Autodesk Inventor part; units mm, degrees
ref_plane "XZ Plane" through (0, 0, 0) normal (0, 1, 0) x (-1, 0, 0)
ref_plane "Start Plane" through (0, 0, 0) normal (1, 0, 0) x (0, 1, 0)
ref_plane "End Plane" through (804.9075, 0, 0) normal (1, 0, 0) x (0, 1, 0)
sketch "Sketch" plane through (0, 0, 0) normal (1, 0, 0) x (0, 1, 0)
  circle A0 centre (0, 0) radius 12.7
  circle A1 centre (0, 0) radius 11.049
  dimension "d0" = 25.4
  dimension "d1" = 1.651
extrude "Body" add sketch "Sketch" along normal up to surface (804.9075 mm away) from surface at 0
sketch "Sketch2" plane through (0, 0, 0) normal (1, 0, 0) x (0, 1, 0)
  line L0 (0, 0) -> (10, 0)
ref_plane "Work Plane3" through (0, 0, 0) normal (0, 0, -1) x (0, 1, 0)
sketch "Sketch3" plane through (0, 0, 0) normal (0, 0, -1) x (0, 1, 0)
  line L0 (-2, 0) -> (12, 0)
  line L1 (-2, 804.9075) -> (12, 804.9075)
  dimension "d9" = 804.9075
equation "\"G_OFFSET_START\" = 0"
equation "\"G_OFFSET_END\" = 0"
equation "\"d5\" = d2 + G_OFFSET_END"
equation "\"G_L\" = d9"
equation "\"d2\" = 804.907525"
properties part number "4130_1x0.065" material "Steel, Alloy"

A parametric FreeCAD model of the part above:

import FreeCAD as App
import Part
import Sketcher
from FreeCAD import Vector
Q = App.Units.Quantity

doc = App.newDocument("Part")
body = doc.addObject("PartDesign::Body", "Body")

# Sketch on YZ plane
sketch1 = body.newObject("Sketcher::SketchObject", "Sketch")
sketch1.AttachmentSupport = (doc.getObject("YZ_Plane"), [""])
sketch1.MapMode = "FlatFace"
sketch1.addGeometry(Part.Circle(Vector(0, 0, 0), Vector(0, 0, 1), 13), False)
sketch1.addGeometry(Part.Circle(Vector(0, 0, 0), Vector(0, 0, 1), 11), False)
sketch1.addConstraint(Sketcher.Constraint("Coincident", 0, 3, -1, 1))
sketch1.addConstraint(Sketcher.Constraint("Coincident", 1, 3, -1, 1))
sketch1.addConstraint(Sketcher.Constraint("Diameter", 0, Q("1 in")))
sketch1.addConstraint(Sketcher.Constraint("Diameter", 1, Q("0.87 in")))
pad1 = body.newObject("PartDesign::Pad", "Pad")
pad1.Profile = sketch1
pad1.Length = 804.9075

doc.recompute()
